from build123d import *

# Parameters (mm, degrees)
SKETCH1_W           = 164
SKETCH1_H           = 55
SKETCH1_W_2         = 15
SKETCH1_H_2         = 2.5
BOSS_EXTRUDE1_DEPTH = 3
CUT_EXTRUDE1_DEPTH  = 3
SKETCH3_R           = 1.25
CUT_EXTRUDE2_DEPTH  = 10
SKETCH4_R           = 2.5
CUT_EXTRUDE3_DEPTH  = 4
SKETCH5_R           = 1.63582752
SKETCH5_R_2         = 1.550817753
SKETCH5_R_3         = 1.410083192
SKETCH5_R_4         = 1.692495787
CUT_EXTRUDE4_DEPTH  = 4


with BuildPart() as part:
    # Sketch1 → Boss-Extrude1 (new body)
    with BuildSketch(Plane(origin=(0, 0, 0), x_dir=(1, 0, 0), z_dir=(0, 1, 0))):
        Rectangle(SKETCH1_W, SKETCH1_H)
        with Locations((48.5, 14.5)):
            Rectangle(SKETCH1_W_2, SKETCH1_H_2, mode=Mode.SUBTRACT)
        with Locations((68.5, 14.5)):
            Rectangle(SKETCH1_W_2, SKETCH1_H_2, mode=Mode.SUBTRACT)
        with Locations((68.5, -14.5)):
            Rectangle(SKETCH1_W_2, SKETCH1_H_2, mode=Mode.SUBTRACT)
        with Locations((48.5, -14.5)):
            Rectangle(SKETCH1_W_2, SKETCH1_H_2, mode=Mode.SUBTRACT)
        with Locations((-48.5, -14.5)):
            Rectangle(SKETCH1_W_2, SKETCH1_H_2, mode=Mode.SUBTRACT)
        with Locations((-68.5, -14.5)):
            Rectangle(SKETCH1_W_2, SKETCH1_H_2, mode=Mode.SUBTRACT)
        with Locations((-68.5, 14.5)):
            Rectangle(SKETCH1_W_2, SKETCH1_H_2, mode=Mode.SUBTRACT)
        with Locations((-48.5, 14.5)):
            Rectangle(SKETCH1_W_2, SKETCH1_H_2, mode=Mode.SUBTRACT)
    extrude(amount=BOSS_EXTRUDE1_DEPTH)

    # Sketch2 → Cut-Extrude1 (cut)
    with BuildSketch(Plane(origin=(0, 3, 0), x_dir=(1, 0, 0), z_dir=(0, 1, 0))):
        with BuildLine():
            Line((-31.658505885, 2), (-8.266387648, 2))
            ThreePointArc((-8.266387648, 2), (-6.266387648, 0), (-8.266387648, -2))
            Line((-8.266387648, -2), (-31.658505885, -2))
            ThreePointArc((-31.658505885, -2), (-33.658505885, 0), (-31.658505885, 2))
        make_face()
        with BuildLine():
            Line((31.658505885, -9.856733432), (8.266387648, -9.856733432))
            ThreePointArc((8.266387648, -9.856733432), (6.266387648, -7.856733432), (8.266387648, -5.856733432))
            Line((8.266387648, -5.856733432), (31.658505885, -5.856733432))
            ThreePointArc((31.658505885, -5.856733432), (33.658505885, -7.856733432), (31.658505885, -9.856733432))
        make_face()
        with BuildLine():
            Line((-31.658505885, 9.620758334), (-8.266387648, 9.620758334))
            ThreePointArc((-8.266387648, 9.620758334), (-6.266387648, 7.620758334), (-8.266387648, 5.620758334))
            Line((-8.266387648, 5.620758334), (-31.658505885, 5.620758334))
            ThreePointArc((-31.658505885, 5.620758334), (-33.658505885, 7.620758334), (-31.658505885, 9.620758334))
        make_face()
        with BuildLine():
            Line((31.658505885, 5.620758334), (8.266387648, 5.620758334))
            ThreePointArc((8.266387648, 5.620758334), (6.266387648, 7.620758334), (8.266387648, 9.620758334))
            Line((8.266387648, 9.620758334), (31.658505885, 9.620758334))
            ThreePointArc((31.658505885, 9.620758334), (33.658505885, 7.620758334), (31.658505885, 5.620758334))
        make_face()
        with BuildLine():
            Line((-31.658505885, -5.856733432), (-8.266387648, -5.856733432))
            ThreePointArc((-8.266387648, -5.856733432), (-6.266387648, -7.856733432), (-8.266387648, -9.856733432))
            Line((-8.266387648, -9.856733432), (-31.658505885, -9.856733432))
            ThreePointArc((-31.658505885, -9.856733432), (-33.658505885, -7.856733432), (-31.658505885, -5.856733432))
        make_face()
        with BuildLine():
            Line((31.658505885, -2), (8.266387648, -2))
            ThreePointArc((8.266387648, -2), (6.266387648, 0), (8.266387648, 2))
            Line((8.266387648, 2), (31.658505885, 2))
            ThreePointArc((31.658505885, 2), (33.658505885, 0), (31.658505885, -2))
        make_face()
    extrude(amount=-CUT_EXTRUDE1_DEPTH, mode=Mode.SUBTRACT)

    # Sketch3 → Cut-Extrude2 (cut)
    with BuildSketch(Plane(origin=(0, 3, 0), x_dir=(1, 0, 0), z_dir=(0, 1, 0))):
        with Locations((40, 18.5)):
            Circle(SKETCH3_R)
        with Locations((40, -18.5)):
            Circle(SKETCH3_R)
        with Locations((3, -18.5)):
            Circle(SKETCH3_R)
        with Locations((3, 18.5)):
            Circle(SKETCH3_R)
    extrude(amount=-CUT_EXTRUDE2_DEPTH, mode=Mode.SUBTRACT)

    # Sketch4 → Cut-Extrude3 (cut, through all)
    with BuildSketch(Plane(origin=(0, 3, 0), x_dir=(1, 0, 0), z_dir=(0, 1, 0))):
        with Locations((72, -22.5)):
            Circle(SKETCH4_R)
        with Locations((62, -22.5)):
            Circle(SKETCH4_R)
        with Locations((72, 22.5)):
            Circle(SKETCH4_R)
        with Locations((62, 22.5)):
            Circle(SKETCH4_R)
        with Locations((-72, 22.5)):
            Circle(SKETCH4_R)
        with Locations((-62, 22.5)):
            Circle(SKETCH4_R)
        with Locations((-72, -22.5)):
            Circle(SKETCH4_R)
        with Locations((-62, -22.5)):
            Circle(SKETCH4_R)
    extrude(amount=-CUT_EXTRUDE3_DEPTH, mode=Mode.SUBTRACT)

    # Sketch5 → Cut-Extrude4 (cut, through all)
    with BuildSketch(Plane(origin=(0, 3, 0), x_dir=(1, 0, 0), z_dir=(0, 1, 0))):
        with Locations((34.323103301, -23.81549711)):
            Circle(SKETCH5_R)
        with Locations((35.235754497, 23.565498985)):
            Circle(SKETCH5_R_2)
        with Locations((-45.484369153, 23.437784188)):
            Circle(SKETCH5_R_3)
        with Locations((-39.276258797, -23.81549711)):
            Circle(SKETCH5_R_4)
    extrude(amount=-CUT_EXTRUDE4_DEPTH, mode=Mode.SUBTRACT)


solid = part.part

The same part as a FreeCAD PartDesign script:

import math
import FreeCAD as App
import Part
import Sketcher

V = App.Vector
Q = App.Units.Quantity


def add_polygon(sketch, points):
    """Adds a closed chain of lines whose ends are joined by coincident constraints."""
    first, n = sketch.GeometryCount, len(points)
    for a, b in zip(points, points[1:] + points[:1]):
        sketch.addGeometry(Part.LineSegment(App.Vector(*a, 0), App.Vector(*b, 0)), False)
    for i in range(n):
        sketch.addConstraint(Sketcher.Constraint("Coincident", first + i, 2, first + (i + 1) % n, 1))

doc = App.newDocument("Part")
body = doc.addObject("PartDesign::Body", "Body")

# Sketch on XZ plane
sketch1 = body.newObject("Sketcher::SketchObject", "Sketch")
sketch1.AttachmentSupport = (doc.getObject("XZ_Plane"), [""])
sketch1.MapMode = "FlatFace"
add_polygon(sketch1, [(-82, -27.5), (-82, 27.5), (82, 27.5), (82, -27.5)])  # lines 0-3
add_polygon(sketch1, [(-61, 15.8), (-76, 15.8), (-76, 13.2), (-61, 13.2)])  # lines 4-7
add_polygon(sketch1, [(-41, 15.8), (-56, 15.8), (-56, 13.2), (-41, 13.2)])  # lines 8-11
add_polygon(sketch1, [(56, 15.8), (41, 15.8), (41, 13.2), (56, 13.2)])  # lines 12-15
add_polygon(sketch1, [(76, 15.8), (61, 15.8), (61, 13.2), (76, 13.2)])  # lines 16-19
add_polygon(sketch1, [(-61, -13.2), (-76, -13.2), (-76, -15.8), (-61, -15.8)])  # lines 20-23
add_polygon(sketch1, [(-41, -13.2), (-56, -13.2), (-56, -15.8), (-41, -15.8)])  # lines 24-27
add_polygon(sketch1, [(56, -13.2), (41, -13.2), (41, -15.8), (56, -15.8)])  # lines 28-31
add_polygon(sketch1, [(76, -13.2), (61, -13.2), (61, -15.8), (76, -15.8)])  # lines 32-35
sketch1.addConstraint([
    Sketcher.Constraint("Vertical", 0),
    Sketcher.Constraint("Horizontal", 1),
    Sketcher.Constraint("Vertical", 2),
    Sketcher.Constraint("Horizontal", 3),
    Sketcher.Constraint("Horizontal", 4),
    Sketcher.Constraint("Vertical", 5),
    Sketcher.Constraint("Horizontal", 6),
    Sketcher.Constraint("Vertical", 7),
    Sketcher.Constraint("Horizontal", 8),
    Sketcher.Constraint("Vertical", 9),
    Sketcher.Constraint("Horizontal", 10),
    Sketcher.Constraint("Vertical", 11),
    Sketcher.Constraint("Horizontal", 12),
    Sketcher.Constraint("Vertical", 13),
    Sketcher.Constraint("Horizontal", 14),
    Sketcher.Constraint("Vertical", 15),
    Sketcher.Constraint("Horizontal", 16),
    Sketcher.Constraint("Vertical", 17),
    Sketcher.Constraint("Horizontal", 18),
    Sketcher.Constraint("Vertical", 19),
    Sketcher.Constraint("Horizontal", 20),
    Sketcher.Constraint("Vertical", 21),
    Sketcher.Constraint("Horizontal", 22),
    Sketcher.Constraint("Vertical", 23),
    Sketcher.Constraint("Horizontal", 24),
    Sketcher.Constraint("Vertical", 25),
    Sketcher.Constraint("Horizontal", 26),
    Sketcher.Constraint("Vertical", 27),
    Sketcher.Constraint("Horizontal", 28),
    Sketcher.Constraint("Vertical", 29),
    Sketcher.Constraint("Horizontal", 30),
    Sketcher.Constraint("Vertical", 31),
    Sketcher.Constraint("Horizontal", 32),
    Sketcher.Constraint("Vertical", 33),
    Sketcher.Constraint("Horizontal", 34),
    Sketcher.Constraint("Vertical", 35),
    Sketcher.Constraint("Symmetric", 0, 2, 2, 2, -1, 1),
    Sketcher.Constraint("Symmetric", 18, 2, 20, 2, -1, 1),
    Sketcher.Constraint("Symmetric", 16, 2, 22, 2, -1, 1),
    Sketcher.Constraint("Symmetric", 14, 2, 24, 2, -1, 1),
    Sketcher.Constraint("Symmetric", 12, 2, 26, 2, -1, 1),
    Sketcher.Constraint("Symmetric", 10, 2, 28, 2, -1, 1),
    Sketcher.Constraint("Symmetric", 8, 2, 30, 2, -1, 1),
    Sketcher.Constraint("Symmetric", 6, 2, 32, 2, -1, 1),
    Sketcher.Constraint("Symmetric", 4, 2, 34, 2, -1, 1),
    Sketcher.Constraint("Symmetric", 11, 2, 12, 2, -2),
    Sketcher.Constraint("Symmetric", 9, 2, 14, 2, -2),
    Sketcher.Constraint("Symmetric", 7, 2, 16, 2, -2),
    Sketcher.Constraint("Symmetric", 5, 2, 18, 2, -2),
    Sketcher.Constraint("Horizontal", 7, 2, 8, 2),
    Sketcher.Constraint("Horizontal", 6, 2, 9, 2),
    Sketcher.Constraint("Equal", 6, 8),
    Sketcher.Constraint("DistanceX", 1, 1, 1, 2, Q("164 mm")),
    Sketcher.Constraint("DistanceX", 4, 2, 4, 1, Q("15 mm")),
    Sketcher.Constraint("DistanceY", 0, 1, 0, 2, Q("55 mm")),
    Sketcher.Constraint("DistanceY", 5, 2, 5, 1, Q("2.5 mm")),
    Sketcher.Constraint("DistanceX", 4, 2, -1, 1, Q("76 mm")),
    Sketcher.Constraint("DistanceX", 8, 2, -1, 1, Q("56 mm")),
    Sketcher.Constraint("DistanceY", 20, 2, 4, 2, Q("29 mm")),
])
pad1 = body.newObject("PartDesign::Pad", "Pad")
pad1.Profile = sketch1
pad1.Length = 3
pad1.Reversed = True

# Sketch on XZ plane
sketch2 = body.newObject("Sketcher::SketchObject", "Sketch001")
sketch2.AttachmentSupport = (doc.getObject("XZ_Plane"), [""])
sketch2.MapMode = "FlatFace"
sketch2.AttachmentOffset = App.Placement(V(0, 0, -3), App.Rotation())
sketch2.addGeometry([
    Part.LineSegment(V(-8.3, -2, 0), V(-31.7, -2, 0)),  # 0
    Part.ArcOfCircle(Part.Circle(V(-31.7, 0, 0), V(0, 0, 1), 2), math.radians(90), math.radians(270)),  # 1
    Part.LineSegment(V(-31.7, 2, 0), V(-8.3, 2, 0)),  # 2
    Part.ArcOfCircle(Part.Circle(V(-8.3, 0, 0), V(0, 0, 1), 2), math.radians(-90), math.radians(90)),  # 3
    Part.LineSegment(V(8.3, 9.9, 0), V(31.7, 9.9, 0)),  # 4
    Part.ArcOfCircle(Part.Circle(V(31.7, 7.9, 0), V(0, 0, 1), 2), math.radians(-90), math.radians(90)),  # 5
    Part.LineSegment(V(31.7, 5.9, 0), V(8.3, 5.9, 0)),  # 6
    Part.ArcOfCircle(Part.Circle(V(8.3, 7.9, 0), V(0, 0, 1), 2), math.radians(90), math.radians(270)),  # 7
    Part.LineSegment(V(-8.3, -9.6, 0), V(-31.7, -9.6, 0)),  # 8
    Part.ArcOfCircle(Part.Circle(V(-31.7, -7.6, 0), V(0, 0, 1), 2), math.radians(90), math.radians(270)),  # 9
    Part.LineSegment(V(-31.7, -5.6, 0), V(-8.3, -5.6, 0)),  # 10
    Part.ArcOfCircle(Part.Circle(V(-8.3, -7.6, 0), V(0, 0, 1), 2), math.radians(-90), math.radians(90)),  # 11
    Part.LineSegment(V(8.3, -5.6, 0), V(31.7, -5.6, 0)),  # 12
    Part.ArcOfCircle(Part.Circle(V(31.7, -7.6, 0), V(0, 0, 1), 2), math.radians(-90), math.radians(90)),  # 13
    Part.LineSegment(V(31.7, -9.6, 0), V(8.3, -9.6, 0)),  # 14
    Part.ArcOfCircle(Part.Circle(V(8.3, -7.6, 0), V(0, 0, 1), 2), math.radians(90), math.radians(270)),  # 15
    Part.LineSegment(V(-8.3, 5.9, 0), V(-31.7, 5.9, 0)),  # 16
    Part.ArcOfCircle(Part.Circle(V(-31.7, 7.9, 0), V(0, 0, 1), 2), math.radians(90), math.radians(270)),  # 17
    Part.LineSegment(V(-31.7, 9.9, 0), V(-8.3, 9.9, 0)),  # 18
    Part.ArcOfCircle(Part.Circle(V(-8.3, 7.9, 0), V(0, 0, 1), 2), math.radians(-90), math.radians(90)),  # 19
    Part.LineSegment(V(8.3, 2, 0), V(31.7, 2, 0)),  # 20
    Part.ArcOfCircle(Part.Circle(V(31.7, 0, 0), V(0, 0, 1), 2), math.radians(-90), math.radians(90)),  # 21
    Part.LineSegment(V(31.7, -2, 0), V(8.3, -2, 0)),  # 22
    Part.ArcOfCircle(Part.Circle(V(8.3, 0, 0), V(0, 0, 1), 2), math.radians(90), math.radians(270)),  # 23
], False)
sketch2.addConstraint([
    Sketcher.Constraint("Tangent", 0, 2, 1, 2),
    Sketcher.Constraint("Tangent", 1, 1, 2, 1),
    Sketcher.Constraint("Tangent", 2, 2, 3, 2),
    Sketcher.Constraint("Tangent", 3, 1, 0, 1),
    Sketcher.Constraint("Tangent", 4, 2, 5, 2),
    Sketcher.Constraint("Tangent", 5, 1, 6, 1),
    Sketcher.Constraint("Tangent", 6, 2, 7, 2),
    Sketcher.Constraint("Tangent", 7, 1, 4, 1),
    Sketcher.Constraint("Tangent", 8, 2, 9, 2),
    Sketcher.Constraint("Tangent", 9, 1, 10, 1),
    Sketcher.Constraint("Tangent", 10, 2, 11, 2),
    Sketcher.Constraint("Tangent", 11, 1, 8, 1),
    Sketcher.Constraint("Tangent", 12, 2, 13, 2),
    Sketcher.Constraint("Tangent", 13, 1, 14, 1),
    Sketcher.Constraint("Tangent", 14, 2, 15, 2),
    Sketcher.Constraint("Tangent", 15, 1, 12, 1),
    Sketcher.Constraint("Tangent", 16, 2, 17, 2),
    Sketcher.Constraint("Tangent", 17, 1, 18, 1),
    Sketcher.Constraint("Tangent", 18, 2, 19, 2),
    Sketcher.Constraint("Tangent", 19, 1, 16, 1),
    Sketcher.Constraint("Tangent", 20, 2, 21, 2),
    Sketcher.Constraint("Tangent", 21, 1, 22, 1),
    Sketcher.Constraint("Tangent", 22, 2, 23, 2),
    Sketcher.Constraint("Tangent", 23, 1, 20, 1),
    Sketcher.Constraint("Horizontal", 0),
    Sketcher.Constraint("Horizontal", 2),
    Sketcher.Constraint("Horizontal", 4),
    Sketcher.Constraint("Horizontal", 6),
    Sketcher.Constraint("Horizontal", 8),
    Sketcher.Constraint("Horizontal", 10),
    Sketcher.Constraint("Horizontal", 12),
    Sketcher.Constraint("Horizontal", 14),
    Sketcher.Constraint("Horizontal", 16),
    Sketcher.Constraint("Horizontal", 18),
    Sketcher.Constraint("Horizontal", 20),
    Sketcher.Constraint("Horizontal", 22),
    Sketcher.Constraint("Equal", 3, 5),
    Sketcher.Constraint("Equal", 7, 9),
    Sketcher.Constraint("Equal", 11, 13),
    Sketcher.Constraint("Equal", 15, 17),
    Sketcher.Constraint("Equal", 19, 21),
    Sketcher.Constraint("Symmetric", 1, 3, 21, 3, -1, 1),
    Sketcher.Constraint("Symmetric", 9, 3, 13, 3, -2),
    Sketcher.Constraint("Symmetric", 5, 3, 17, 3, -2),
    Sketcher.Constraint("Symmetric", 3, 3, 23, 3, -2),
    Sketcher.Constraint("Vertical", 1, 3, 9, 3),
    Sketcher.Constraint("Vertical", 3, 3, 11, 3),
    Sketcher.Constraint("Vertical", 5, 3, 13, 3),
    Sketcher.Constraint("Vertical", 7, 3, 15, 3),
    Sketcher.Constraint("Vertical", 11, 3, 19, 3),
    Sketcher.Constraint("Vertical", 15, 3, 23, 3),
    Sketcher.Constraint("Radius", 1, Q("2 mm")),
    Sketcher.Constraint("DistanceX", 0, 2, 0, 1, Q("23.392118 mm")),
    Sketcher.Constraint("DistanceY", 9, 3, -1, 1, Q("7.620758 mm")),
    Sketcher.Constraint("DistanceX", 1, 3, 5, 3, Q("63.317012 mm")),
    Sketcher.Constraint("DistanceY", 9, 3, 7, 3, Q("15.477492 mm")),
])
pocket1 = body.newObject("PartDesign::Pocket", "Pocket")
pocket1.Profile = sketch2
pocket1.Length = 3
pocket1.Reversed = True

# Sketch on XZ plane
sketch3 = body.newObject("Sketcher::SketchObject", "Sketch002")
sketch3.AttachmentSupport = (doc.getObject("XZ_Plane"), [""])
sketch3.MapMode = "FlatFace"
sketch3.AttachmentOffset = App.Placement(V(0, 0, -3), App.Rotation())
sketch3.addGeometry([
    Part.Circle(V(40, -18.5, 0), V(0, 0, 1), 1.2),
    Part.Circle(V(40, 18.5, 0), V(0, 0, 1), 1.2),
    Part.Circle(V(3, 18.5, 0), V(0, 0, 1), 1.2),
    Part.Circle(V(3, -18.5, 0), V(0, 0, 1), 1.2),
], False)
sketch3.addConstraint([
    Sketcher.Constraint("Equal", 0, 1),
    Sketcher.Constraint("Equal", 1, 2),
    Sketcher.Constraint("Equal", 2, 3),
    Sketcher.Constraint("Symmetric", 0, 3, 1, 3, -1),
    Sketcher.Constraint("Symmetric", 2, 3, 3, 3, -1),
    Sketcher.Constraint("Horizontal", 1, 3, 2, 3),
    Sketcher.Constraint("Diameter", 0, Q("2.5 mm")),
    Sketcher.Constraint("DistanceX", -1, 1, 0, 3, Q("40 mm")),
    Sketcher.Constraint("DistanceX", -1, 1, 2, 3, Q("3 mm")),
    Sketcher.Constraint("DistanceY", 0, 3, 1, 3, Q("37 mm")),
])
pocket2 = body.newObject("PartDesign::Pocket", "Pocket001")
pocket2.Profile = sketch3
pocket2.Length = 10
pocket2.Reversed = True

# Sketch on XZ plane
sketch4 = body.newObject("Sketcher::SketchObject", "Sketch003")
sketch4.AttachmentSupport = (doc.getObject("XZ_Plane"), [""])
sketch4.MapMode = "FlatFace"
sketch4.AttachmentOffset = App.Placement(V(0, 0, -3), App.Rotation())
sketch4.addGeometry([
    Part.Circle(V(72, 22.5, 0), V(0, 0, 1), 2.5),  # 0
    Part.Circle(V(62, 22.5, 0), V(0, 0, 1), 2.5),  # 1
    Part.Circle(V(72, -22.5, 0), V(0, 0, 1), 2.5),  # 2
    Part.Circle(V(62, -22.5, 0), V(0, 0, 1), 2.5),  # 3
    Part.Circle(V(-72, -22.5, 0), V(0, 0, 1), 2.5),  # 4
    Part.Circle(V(-62, -22.5, 0), V(0, 0, 1), 2.5),  # 5
    Part.Circle(V(-72, 22.5, 0), V(0, 0, 1), 2.5),  # 6
    Part.Circle(V(-62, 22.5, 0), V(0, 0, 1), 2.5),  # 7
], False)
sketch4.addConstraint([
    Sketcher.Constraint("Equal", 0, 1),
    Sketcher.Constraint("Equal", 1, 2),
    Sketcher.Constraint("Equal", 2, 3),
    Sketcher.Constraint("Equal", 3, 4),
    Sketcher.Constraint("Equal", 4, 5),
    Sketcher.Constraint("Equal", 5, 6),
    Sketcher.Constraint("Equal", 6, 7),
    Sketcher.Constraint("Symmetric", 0, 3, 4, 3, -1, 1),
    Sketcher.Constraint("Symmetric", 1, 3, 5, 3, -1, 1),
    Sketcher.Constraint("Symmetric", 2, 3, 6, 3, -1, 1),
    Sketcher.Constraint("Symmetric", 3, 3, 7, 3, -1, 1),
    Sketcher.Constraint("Symmetric", 2, 3, 4, 3, -2),
    Sketcher.Constraint("Symmetric", 3, 3, 5, 3, -2),
    Sketcher.Constraint("Horizontal", 0, 3, 1, 3),
    Sketcher.Constraint("Diameter", 0, Q("5 mm")),
    Sketcher.Constraint("DistanceX", -1, 1, 0, 3, Q("72 mm")),
    Sketcher.Constraint("DistanceX", -1, 1, 1, 3, Q("62 mm")),
    Sketcher.Constraint("DistanceY", 2, 3, 0, 3, Q("45 mm")),
])
pocket3 = body.newObject("PartDesign::Pocket", "Pocket002")
pocket3.Profile = sketch4
pocket3.Type = "ThroughAll"
pocket3.Reversed = True

# Sketch on XZ plane
sketch5 = body.newObject("Sketcher::SketchObject", "Sketch004")
sketch5.AttachmentSupport = (doc.getObject("XZ_Plane"), [""])
sketch5.MapMode = "FlatFace"
sketch5.AttachmentOffset = App.Placement(V(0, 0, -3), App.Rotation())
sketch5.addGeometry([
    Part.Circle(V(34.3, 23.8, 0), V(0, 0, 1), 1.6),
    Part.Circle(V(35.2, -23.6, 0), V(0, 0, 1), 1.6),
    Part.Circle(V(-45.5, -23.4, 0), V(0, 0, 1), 1.4),
    Part.Circle(V(-39.3, 23.8, 0), V(0, 0, 1), 1.7),
], False)
sketch5.addConstraint([
    Sketcher.Constraint("Horizontal", 0, 3, 3, 3),
    Sketcher.Constraint("Diameter", 3, Q("3.384992 mm")),
    Sketcher.Constraint("Diameter", 0, Q("3.271655 mm")),
    Sketcher.Constraint("Diameter", 1, Q("3.101636 mm")),
    Sketcher.Constraint("Diameter", 2, Q("2.820166 mm")),
    Sketcher.Constraint("DistanceY", 1, 3, -1, 1, Q("23.565499 mm")),
    Sketcher.Constraint("DistanceX", 2, 3, -1, 1, Q("45.484369 mm")),
    Sketcher.Constraint("DistanceX", 3, 3, -1, 1, Q("39.276259 mm")),
    Sketcher.Constraint("DistanceX", 0, 3, 1, 3, Q("0.912651 mm")),
    Sketcher.Constraint("DistanceY", 2, 3, 0, 3, Q("47.253281 mm")),
    Sketcher.Constraint("DistanceX", -1, 1, 0, 3, Q("34.323103 mm")),
    Sketcher.Constraint("DistanceY", -1, 1, 0, 3, Q("23.815497 mm")),
])
pocket4 = body.newObject("PartDesign::Pocket", "Pocket003")
pocket4.Profile = sketch5
pocket4.Type = "ThroughAll"
pocket4.Reversed = True

doc.recompute()
